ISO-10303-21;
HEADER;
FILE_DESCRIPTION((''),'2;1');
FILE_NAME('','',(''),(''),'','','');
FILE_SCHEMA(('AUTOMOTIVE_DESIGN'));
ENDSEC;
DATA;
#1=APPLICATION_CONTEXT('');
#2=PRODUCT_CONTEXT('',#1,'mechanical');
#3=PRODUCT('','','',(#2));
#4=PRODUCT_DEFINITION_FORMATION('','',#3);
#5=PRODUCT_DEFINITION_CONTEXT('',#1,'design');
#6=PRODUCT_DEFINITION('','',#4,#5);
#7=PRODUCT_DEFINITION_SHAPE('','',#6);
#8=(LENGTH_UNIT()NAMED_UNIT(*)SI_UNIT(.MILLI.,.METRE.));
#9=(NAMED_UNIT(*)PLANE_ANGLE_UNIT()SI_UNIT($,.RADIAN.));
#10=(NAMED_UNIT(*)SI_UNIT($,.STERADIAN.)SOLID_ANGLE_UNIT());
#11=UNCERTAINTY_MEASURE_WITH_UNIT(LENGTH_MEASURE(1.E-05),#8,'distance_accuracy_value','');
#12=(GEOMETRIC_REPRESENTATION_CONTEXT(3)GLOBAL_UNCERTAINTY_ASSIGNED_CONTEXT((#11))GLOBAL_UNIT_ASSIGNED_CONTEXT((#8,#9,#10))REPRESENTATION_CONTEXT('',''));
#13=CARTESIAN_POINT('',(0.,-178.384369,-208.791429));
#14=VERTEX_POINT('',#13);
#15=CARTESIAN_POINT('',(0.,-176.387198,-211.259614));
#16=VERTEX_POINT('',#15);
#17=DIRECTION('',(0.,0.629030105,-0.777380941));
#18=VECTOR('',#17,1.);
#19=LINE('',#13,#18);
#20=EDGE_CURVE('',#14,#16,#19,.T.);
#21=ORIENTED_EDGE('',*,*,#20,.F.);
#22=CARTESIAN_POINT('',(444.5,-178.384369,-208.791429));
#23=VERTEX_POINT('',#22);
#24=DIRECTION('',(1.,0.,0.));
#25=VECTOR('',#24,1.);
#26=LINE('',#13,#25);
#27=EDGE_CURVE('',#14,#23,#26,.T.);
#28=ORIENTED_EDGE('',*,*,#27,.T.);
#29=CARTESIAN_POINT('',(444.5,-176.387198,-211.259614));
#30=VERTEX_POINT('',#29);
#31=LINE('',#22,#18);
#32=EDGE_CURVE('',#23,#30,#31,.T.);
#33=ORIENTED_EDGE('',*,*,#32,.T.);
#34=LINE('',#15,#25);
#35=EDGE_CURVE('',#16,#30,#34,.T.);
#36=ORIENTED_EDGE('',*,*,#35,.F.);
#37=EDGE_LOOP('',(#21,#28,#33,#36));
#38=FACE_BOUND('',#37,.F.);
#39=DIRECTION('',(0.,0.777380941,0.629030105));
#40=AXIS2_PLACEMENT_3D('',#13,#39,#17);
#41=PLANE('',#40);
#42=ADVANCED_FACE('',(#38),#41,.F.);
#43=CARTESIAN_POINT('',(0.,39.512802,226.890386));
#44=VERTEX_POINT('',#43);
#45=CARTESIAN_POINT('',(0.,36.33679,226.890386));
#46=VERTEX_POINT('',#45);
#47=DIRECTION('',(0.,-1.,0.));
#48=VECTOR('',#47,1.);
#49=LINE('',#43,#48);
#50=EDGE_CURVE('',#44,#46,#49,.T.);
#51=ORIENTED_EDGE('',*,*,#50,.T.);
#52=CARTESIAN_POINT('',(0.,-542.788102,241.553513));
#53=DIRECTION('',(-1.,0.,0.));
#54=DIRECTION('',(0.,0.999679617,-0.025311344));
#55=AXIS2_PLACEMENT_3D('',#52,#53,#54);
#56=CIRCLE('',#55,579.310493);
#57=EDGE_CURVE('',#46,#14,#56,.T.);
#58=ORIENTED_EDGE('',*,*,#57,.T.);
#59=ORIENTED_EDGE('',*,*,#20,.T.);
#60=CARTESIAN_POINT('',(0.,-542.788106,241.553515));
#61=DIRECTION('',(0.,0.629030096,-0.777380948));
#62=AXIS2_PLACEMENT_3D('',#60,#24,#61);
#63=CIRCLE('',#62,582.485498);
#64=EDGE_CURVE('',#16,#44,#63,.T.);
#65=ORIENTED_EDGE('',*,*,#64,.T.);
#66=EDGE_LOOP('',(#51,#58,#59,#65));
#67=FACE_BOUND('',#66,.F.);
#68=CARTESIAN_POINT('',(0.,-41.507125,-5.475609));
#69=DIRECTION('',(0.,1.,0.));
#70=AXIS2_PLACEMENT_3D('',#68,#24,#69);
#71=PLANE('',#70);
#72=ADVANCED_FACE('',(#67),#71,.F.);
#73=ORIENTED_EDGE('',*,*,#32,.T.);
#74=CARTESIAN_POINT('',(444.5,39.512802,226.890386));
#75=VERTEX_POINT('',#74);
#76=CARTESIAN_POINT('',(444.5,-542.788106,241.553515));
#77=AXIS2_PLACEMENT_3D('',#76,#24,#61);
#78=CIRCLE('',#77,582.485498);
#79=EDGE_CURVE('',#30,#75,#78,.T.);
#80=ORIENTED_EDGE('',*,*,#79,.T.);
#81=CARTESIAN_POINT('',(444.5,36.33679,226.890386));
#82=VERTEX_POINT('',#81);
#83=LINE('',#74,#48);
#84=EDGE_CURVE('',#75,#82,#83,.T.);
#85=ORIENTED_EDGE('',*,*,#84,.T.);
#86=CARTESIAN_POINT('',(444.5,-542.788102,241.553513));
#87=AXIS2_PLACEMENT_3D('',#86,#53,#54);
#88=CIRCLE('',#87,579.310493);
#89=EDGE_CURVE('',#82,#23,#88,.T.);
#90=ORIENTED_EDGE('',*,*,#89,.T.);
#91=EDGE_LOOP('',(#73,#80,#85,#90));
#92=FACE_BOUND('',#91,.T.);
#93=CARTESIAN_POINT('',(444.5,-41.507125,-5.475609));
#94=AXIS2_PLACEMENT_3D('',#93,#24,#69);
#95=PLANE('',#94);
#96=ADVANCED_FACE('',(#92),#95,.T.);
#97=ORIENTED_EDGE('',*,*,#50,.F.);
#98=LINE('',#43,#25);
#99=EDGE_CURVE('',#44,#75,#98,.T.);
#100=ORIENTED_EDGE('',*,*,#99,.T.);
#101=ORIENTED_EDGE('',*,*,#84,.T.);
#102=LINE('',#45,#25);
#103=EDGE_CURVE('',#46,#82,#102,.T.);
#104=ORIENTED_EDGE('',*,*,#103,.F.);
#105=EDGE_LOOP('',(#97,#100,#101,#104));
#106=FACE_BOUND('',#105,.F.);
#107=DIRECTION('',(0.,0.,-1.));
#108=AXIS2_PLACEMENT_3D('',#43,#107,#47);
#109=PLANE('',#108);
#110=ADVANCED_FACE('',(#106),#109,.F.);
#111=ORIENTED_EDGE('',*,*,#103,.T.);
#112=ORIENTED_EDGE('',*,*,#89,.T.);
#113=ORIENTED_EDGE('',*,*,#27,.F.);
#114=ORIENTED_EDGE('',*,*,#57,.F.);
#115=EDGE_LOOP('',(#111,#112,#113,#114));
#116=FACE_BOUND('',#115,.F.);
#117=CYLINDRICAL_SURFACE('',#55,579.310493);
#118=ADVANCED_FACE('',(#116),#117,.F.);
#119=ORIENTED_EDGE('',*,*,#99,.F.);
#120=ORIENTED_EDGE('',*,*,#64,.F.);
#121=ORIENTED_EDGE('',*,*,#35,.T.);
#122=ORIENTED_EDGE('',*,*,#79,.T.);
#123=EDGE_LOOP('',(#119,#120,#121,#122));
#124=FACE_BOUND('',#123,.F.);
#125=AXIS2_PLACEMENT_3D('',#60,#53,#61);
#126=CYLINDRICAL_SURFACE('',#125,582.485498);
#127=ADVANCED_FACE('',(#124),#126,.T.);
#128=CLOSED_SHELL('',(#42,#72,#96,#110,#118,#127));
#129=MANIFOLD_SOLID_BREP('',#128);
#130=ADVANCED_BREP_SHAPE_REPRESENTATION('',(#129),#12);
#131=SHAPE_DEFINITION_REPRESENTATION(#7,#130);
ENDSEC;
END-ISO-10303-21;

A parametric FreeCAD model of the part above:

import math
import FreeCAD as App
import Part
import Sketcher
Q = App.Units.Quantity

doc = App.newDocument("Part")
body = doc.addObject("PartDesign::Body", "Body")

# Sketch on YZ plane
sketch1 = body.newObject("Sketcher::SketchObject", "Sketch")
sketch1.AttachmentSupport = (doc.getObject("YZ_Plane"), [""])
sketch1.MapMode = "FlatFace"
sketch1.addGeometry([
    Part.LineSegment(App.Vector(39.5, 226.9, 0), App.Vector(36.3, 226.9, 0)),
    Part.ArcOfCircle(Part.Circle(App.Vector(-542.8, 241.6, 0), App.Vector(0, 0, 1), 579.3), math.radians(-51), math.radians(-1)),
    Part.LineSegment(App.Vector(-178.4, -208.8, 0), App.Vector(-176.4, -211.3, 0)),
    Part.ArcOfCircle(Part.Circle(App.Vector(-542.8, 241.6, 0), App.Vector(0, 0, 1), 582.5), math.radians(-51), math.radians(-1)),
], False)
sketch1.addConstraint([
    Sketcher.Constraint("Coincident", 0, 2, 1, 2),
    Sketcher.Constraint("Coincident", 1, 1, 2, 1),
    Sketcher.Constraint("Coincident", 2, 2, 3, 1),
    Sketcher.Constraint("Coincident", 3, 2, 0, 1),
    Sketcher.Constraint("Horizontal", 0),
    Sketcher.Constraint("Coincident", 3, 3, 1, 3),
    Sketcher.Constraint("Radius", 3, Q("22.9324999 in")),
    Sketcher.Constraint("DistanceX", 2, 2, 3, 2, Q("8.5 in")),
    Sketcher.Constraint("DistanceY", 2, 2, 0, 2, Q("17.25 in")),
    Sketcher.Constraint("Distance", 2, Q("0.125 in")),
    Sketcher.Constraint("DistanceX", 1, 3, -1, 1, 542.788102),
    Sketcher.Constraint("DistanceY", -1, 1, 1, 3, 241.553513),
    Sketcher.Constraint("Angle", 2, Q("-51.021398 deg")),
])
pad1 = body.newObject("PartDesign::Pad", "Pad")
pad1.Profile = sketch1
pad1.Length = Q("17.5 in")

doc.recompute()
